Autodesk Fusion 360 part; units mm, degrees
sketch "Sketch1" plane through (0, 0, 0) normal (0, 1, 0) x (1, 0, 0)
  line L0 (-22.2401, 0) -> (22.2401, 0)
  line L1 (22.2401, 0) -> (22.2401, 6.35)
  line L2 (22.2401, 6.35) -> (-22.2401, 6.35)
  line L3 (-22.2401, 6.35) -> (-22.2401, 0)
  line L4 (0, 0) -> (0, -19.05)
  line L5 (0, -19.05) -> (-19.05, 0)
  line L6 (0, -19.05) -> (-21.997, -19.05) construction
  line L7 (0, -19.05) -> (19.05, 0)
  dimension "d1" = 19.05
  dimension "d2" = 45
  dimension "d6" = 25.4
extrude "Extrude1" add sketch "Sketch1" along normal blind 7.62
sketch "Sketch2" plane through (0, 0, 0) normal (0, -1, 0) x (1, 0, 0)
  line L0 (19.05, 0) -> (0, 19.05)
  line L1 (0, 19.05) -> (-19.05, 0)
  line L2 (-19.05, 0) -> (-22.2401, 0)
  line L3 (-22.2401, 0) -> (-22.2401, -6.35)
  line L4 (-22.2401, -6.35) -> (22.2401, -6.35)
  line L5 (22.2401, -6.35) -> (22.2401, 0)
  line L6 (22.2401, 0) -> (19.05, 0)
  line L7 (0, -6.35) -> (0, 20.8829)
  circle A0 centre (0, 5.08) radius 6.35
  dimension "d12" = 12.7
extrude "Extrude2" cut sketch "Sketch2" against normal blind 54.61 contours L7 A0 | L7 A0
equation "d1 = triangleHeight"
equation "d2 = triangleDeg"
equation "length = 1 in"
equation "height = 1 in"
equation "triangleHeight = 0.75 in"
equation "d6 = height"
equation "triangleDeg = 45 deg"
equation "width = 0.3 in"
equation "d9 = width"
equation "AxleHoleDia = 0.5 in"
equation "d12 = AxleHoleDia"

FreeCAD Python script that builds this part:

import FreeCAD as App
import Part
import Sketcher
from FreeCAD import Vector
Q = App.Units.Quantity

doc = App.newDocument("Part")
body = doc.addObject("PartDesign::Body", "Body")

# Sketch on XZ plane
sketch1 = body.newObject("Sketcher::SketchObject", "Sketch")
sketch1.AttachmentSupport = (doc.getObject("XZ_Plane"), [""])
sketch1.MapMode = "FlatFace"
sketch1.addGeometry([
    Part.LineSegment(Vector(-22.2, -6.3, 0), Vector(-22.2, 0, 0)),  # 0
    Part.LineSegment(Vector(-22.2, 0, 0), Vector(-19.1, 0, 0)),  # 1
    Part.LineSegment(Vector(-19.1, 0, 0), Vector(0, 19.1, 0)),  # 2
    Part.LineSegment(Vector(0, 19.1, 0), Vector(19.1, 0, 0)),  # 3
    Part.LineSegment(Vector(19.1, 0, 0), Vector(22.2, 0, 0)),  # 4
    Part.LineSegment(Vector(22.2, 0, 0), Vector(22.2, -6.3, 0)),  # 5
    Part.LineSegment(Vector(22.2, -6.3, 0), Vector(-22.2, -6.3, 0)),  # 6
], False)
sketch1.addConstraint([
    Sketcher.Constraint("Coincident", 0, 2, 1, 1),
    Sketcher.Constraint("Coincident", 1, 2, 2, 1),
    Sketcher.Constraint("Coincident", 2, 2, 3, 1),
    Sketcher.Constraint("Coincident", 3, 2, 4, 1),
    Sketcher.Constraint("Coincident", 4, 2, 5, 1),
    Sketcher.Constraint("Coincident", 5, 2, 6, 1),
    Sketcher.Constraint("Coincident", 6, 2, 0, 1),
    Sketcher.Constraint("Vertical", 0),
    Sketcher.Constraint("Horizontal", 1),
    Sketcher.Constraint("Horizontal", 4),
    Sketcher.Constraint("Vertical", 5),
    Sketcher.Constraint("Horizontal", 6),
    Sketcher.Constraint("Symmetric", 1, 2, 3, 2, -1, 1),
    Sketcher.Constraint("Symmetric", 0, 2, 4, 2, -2),
    Sketcher.Constraint("PointOnObject", 2, 2, -2),
    Sketcher.Constraint("Perpendicular", 2, 3),
    Sketcher.Constraint("DistanceY", 5, 2, 2, 2, Q("1 in")),
    Sketcher.Constraint("DistanceX", 1, 2, -1, 1, Q("0.75 in")),
    Sketcher.Constraint("DistanceX", 1, 1, 1, 2, Q("0.1256 in")),
])
pad1 = body.newObject("PartDesign::Pad", "Pad")
pad1.Profile = sketch1
pad1.Length = Q("0.3 in")
pad1.Reversed = True

# Sketch on XZ plane
sketch2 = body.newObject("Sketcher::SketchObject", "Sketch001")
sketch2.AttachmentSupport = (doc.getObject("XZ_Plane"), [""])
sketch2.MapMode = "FlatFace"
sketch2.addGeometry(Part.Circle(Vector(0, 5, 0), Vector(0, 0, 1), 6), False)
sketch2.addConstraint([
    Sketcher.Constraint("PointOnObject", 0, 3, -2),
    Sketcher.Constraint("Diameter", 0, Q("0.5 in")),
    Sketcher.Constraint("DistanceY", -1, 1, 0, 3, Q("0.2 in")),
])
pocket1 = body.newObject("PartDesign::Pocket", "Pocket")
pocket1.Profile = sketch2
pocket1.Length = Q("2.15 in")

doc.recompute()
